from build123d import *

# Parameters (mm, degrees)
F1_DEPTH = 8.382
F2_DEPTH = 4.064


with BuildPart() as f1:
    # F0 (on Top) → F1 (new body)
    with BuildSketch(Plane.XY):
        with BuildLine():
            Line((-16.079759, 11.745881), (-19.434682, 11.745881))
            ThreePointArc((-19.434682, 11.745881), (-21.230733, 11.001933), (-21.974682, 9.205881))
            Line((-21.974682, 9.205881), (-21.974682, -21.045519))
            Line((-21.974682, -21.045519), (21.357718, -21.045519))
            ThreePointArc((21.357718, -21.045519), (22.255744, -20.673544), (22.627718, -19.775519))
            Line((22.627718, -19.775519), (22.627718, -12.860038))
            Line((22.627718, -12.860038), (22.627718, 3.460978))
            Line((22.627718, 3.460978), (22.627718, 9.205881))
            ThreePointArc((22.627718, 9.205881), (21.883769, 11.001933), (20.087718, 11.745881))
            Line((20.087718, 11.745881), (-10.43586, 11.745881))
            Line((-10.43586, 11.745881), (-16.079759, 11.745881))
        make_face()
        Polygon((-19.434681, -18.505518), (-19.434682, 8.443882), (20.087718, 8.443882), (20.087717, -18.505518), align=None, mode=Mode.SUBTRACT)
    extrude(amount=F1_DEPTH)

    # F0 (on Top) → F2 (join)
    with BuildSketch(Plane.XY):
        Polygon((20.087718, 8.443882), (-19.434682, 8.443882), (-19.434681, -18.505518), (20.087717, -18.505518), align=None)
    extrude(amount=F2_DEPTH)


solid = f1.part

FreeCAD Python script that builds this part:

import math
import FreeCAD as App
import Part
import Sketcher

V = App.Vector
Q = App.Units.Quantity


def add_polygon(sketch, points):
    """Adds a closed chain of lines whose ends are joined by coincident constraints."""
    first, n = sketch.GeometryCount, len(points)
    for a, b in zip(points, points[1:] + points[:1]):
        sketch.addGeometry(Part.LineSegment(App.Vector(*a, 0), App.Vector(*b, 0)), False)
    for i in range(n):
        sketch.addConstraint(Sketcher.Constraint("Coincident", first + i, 2, first + (i + 1) % n, 1))

doc = App.newDocument("Part")
body = doc.addObject("PartDesign::Body", "Body")

# Sketch on XY plane
sketch1 = body.newObject("Sketcher::SketchObject", "Sketch")
sketch1.AttachmentSupport = (doc.getObject("XY_Plane"), [""])
sketch1.MapMode = "FlatFace"
sketch1.addGeometry(Part.ArcOfCircle(Part.Circle(V(-19.4, 9.2, 0), V(0, 0, 1), 2.5), math.radians(90), math.radians(180)), False)  # 0
sketch1.addGeometry(Part.LineSegment(V(-22, 9.2, 0), V(-22, -21, 0)), False)  # 1
sketch1.addGeometry(Part.LineSegment(V(-22, -21, 0), V(21.4, -21, 0)), False)  # 2
sketch1.addGeometry(Part.ArcOfCircle(Part.Circle(V(21.4, -19.8, 0), V(0, 0, 1), 1.3), math.radians(-90), math.radians(0)), False)  # 3
sketch1.addGeometry(Part.LineSegment(V(22.6, -19.8, 0), V(22.6, 9.2, 0)), False)  # 4
sketch1.addGeometry(Part.ArcOfCircle(Part.Circle(V(20.1, 9.2, 0), V(0, 0, 1), 2.5), math.radians(0), math.radians(90)), False)  # 5
sketch1.addGeometry(Part.LineSegment(V(20.1, 11.7, 0), V(-19.4, 11.7, 0)), False)  # 6
add_polygon(sketch1, [(20.1, -18.5), (-19.4, -18.5), (-19.4, 8.4), (20.1, 8.4)])  # lines 7-10
sketch1.addConstraint([
    Sketcher.Constraint("Tangent", 0, 2, 1, 1),
    Sketcher.Constraint("Coincident", 1, 2, 2, 1),
    Sketcher.Constraint("Tangent", 2, 2, 3, 1),
    Sketcher.Constraint("Tangent", 3, 2, 4, 1),
    Sketcher.Constraint("Tangent", 4, 2, 5, 1),
    Sketcher.Constraint("Tangent", 5, 2, 6, 1),
    Sketcher.Constraint("Tangent", 6, 2, 0, 1),
    Sketcher.Constraint("Vertical", 1),
    Sketcher.Constraint("Horizontal", 2),
    Sketcher.Constraint("Vertical", 4),
    Sketcher.Constraint("Horizontal", 6),
    Sketcher.Constraint("Horizontal", 7),
    Sketcher.Constraint("Vertical", 8),
    Sketcher.Constraint("Horizontal", 9),
    Sketcher.Constraint("Vertical", 10),
    Sketcher.Constraint("Equal", 0, 5),
    Sketcher.Constraint("Vertical", 6, 2, 7, 2),
    Sketcher.Constraint("Vertical", 5, 2, 9, 2),
    Sketcher.Constraint("Radius", 0, Q("0.1 in")),
    Sketcher.Constraint("Radius", 3, Q("0.05 in")),
    Sketcher.Constraint("DistanceY", 1, 2, 7, 2, Q("0.1 in")),
    Sketcher.Constraint("DistanceX", 2, 1, 2, 2, Q("1.706 in")),
    Sketcher.Constraint("DistanceY", 1, 2, 1, 1, Q("1.191 in")),
    Sketcher.Constraint("DistanceY", 8, 1, 8, 2, Q("1.061 in")),
    Sketcher.Constraint("DistanceY", -1, 1, 0, 3, Q("9.205882 mm")),
    Sketcher.Constraint("DistanceX", -1, 1, 5, 3, Q("20.087719 mm")),
])
pad1 = body.newObject("PartDesign::Pad", "Pad")
pad1.Profile = sketch1
pad1.Length = Q("0.33 in")

# Sketch on XY plane
sketch2 = body.newObject("Sketcher::SketchObject", "Sketch001")
sketch2.AttachmentSupport = (doc.getObject("XY_Plane"), [""])
sketch2.MapMode = "FlatFace"
add_polygon(sketch2, [(20, 8), (-19, 8), (-19, -19), (20, -19)])  # lines 0-3
sketch2.addConstraint([
    Sketcher.Constraint("Horizontal", 0),
    Sketcher.Constraint("Vertical", 1),
    Sketcher.Constraint("Horizontal", 2),
    Sketcher.Constraint("Vertical", 3),
    Sketcher.Constraint("DistanceX", 0, 2, 0, 1, Q("1.556 in")),
    Sketcher.Constraint("DistanceY", 1, 2, 1, 1, Q("1.061 in")),
    Sketcher.Constraint("DistanceX", 0, 2, -1, 1, Q("19.434682 mm")),
    Sketcher.Constraint("DistanceY", -1, 1, 0, 2, Q("8.443882 mm")),
])
pad2 = body.newObject("PartDesign::Pad", "Pad001")
pad2.Profile = sketch2
pad2.Length = Q("0.16 in")

doc.recompute()
